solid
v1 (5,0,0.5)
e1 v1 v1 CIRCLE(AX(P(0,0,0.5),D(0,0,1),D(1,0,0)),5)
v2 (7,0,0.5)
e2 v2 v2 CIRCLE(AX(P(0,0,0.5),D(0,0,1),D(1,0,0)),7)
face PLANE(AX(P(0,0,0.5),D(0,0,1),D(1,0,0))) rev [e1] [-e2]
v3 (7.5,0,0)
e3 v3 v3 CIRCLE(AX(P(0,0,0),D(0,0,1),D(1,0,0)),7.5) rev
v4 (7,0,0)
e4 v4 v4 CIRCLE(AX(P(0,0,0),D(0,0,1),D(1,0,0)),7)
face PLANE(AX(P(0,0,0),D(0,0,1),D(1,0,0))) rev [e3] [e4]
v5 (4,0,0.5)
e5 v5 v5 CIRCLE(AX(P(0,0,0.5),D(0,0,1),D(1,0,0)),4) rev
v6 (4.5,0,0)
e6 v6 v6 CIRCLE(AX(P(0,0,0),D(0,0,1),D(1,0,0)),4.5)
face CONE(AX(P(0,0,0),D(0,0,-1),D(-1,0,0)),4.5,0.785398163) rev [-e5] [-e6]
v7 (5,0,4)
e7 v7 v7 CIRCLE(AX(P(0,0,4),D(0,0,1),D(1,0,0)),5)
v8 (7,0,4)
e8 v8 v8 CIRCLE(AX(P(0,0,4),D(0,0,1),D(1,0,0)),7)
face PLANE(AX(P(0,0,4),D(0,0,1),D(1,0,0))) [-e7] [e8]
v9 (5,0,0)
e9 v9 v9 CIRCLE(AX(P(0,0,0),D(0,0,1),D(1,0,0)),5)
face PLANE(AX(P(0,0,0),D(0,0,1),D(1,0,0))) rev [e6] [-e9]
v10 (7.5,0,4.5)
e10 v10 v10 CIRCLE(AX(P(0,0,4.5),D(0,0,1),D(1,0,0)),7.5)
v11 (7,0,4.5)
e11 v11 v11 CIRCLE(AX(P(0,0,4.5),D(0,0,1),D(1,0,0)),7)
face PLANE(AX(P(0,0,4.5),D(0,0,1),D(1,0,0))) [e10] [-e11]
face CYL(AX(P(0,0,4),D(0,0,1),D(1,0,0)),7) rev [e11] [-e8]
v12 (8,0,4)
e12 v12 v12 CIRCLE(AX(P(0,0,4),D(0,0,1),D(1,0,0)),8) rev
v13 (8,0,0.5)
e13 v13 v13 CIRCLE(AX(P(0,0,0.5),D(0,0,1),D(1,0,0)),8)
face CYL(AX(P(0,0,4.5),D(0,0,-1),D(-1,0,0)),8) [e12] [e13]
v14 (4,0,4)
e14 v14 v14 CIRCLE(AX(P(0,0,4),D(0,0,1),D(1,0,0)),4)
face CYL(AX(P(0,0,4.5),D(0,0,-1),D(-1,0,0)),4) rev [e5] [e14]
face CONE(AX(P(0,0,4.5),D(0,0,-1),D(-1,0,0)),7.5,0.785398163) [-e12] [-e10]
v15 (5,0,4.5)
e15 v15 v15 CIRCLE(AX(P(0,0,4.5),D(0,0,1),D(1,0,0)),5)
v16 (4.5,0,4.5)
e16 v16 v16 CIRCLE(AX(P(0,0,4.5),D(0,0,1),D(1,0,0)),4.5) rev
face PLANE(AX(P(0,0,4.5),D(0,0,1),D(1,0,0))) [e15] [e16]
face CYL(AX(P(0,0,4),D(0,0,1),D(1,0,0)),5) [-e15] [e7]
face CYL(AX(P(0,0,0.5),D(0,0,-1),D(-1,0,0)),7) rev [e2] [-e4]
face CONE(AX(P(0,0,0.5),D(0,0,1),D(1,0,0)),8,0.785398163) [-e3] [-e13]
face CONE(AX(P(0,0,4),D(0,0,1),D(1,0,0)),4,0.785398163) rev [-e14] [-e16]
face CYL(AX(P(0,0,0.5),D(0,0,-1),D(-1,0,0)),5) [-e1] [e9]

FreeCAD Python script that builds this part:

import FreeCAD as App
import Part
import Sketcher

V = App.Vector
Q = App.Units.Quantity


def edges_at(feature, points):
    """Names of the edges that pass closest to the given points."""
    edges = feature.Shape.Edges
    near = lambda p: min(range(len(edges)), key=lambda i: edges[i].distToShape(Part.Vertex(*p))[0])
    return sorted({f"Edge{near(p) + 1}" for p in points})

doc = App.newDocument("Part")
body = doc.addObject("PartDesign::Body", "Body")

sketch1 = body.newObject("Sketcher::SketchObject", "Sketch")
sketch1.AttachmentSupport = (doc.getObject("XY_Plane"), [""])
sketch1.MapMode = "FlatFace"
sketch1.addGeometry(Part.Circle(V(0, 0, 0), V(0, 0, 1), 8), False)
sketch1.addGeometry(Part.Circle(V(0, 0, 0), V(0, 0, 1), 4), False)
sketch1.addConstraint(Sketcher.Constraint("Coincident", 0, 3, -1, 1))
sketch1.addConstraint(Sketcher.Constraint("Coincident", 1, 3, -1, 1))
sketch1.addConstraint(Sketcher.Constraint("Diameter", 0, Q("16 mm")))
sketch1.addConstraint(Sketcher.Constraint("Diameter", 1, Q("8 mm")))
pad1 = body.newObject("PartDesign::Pad", "Pad")
pad1.Profile = sketch1
pad1.Length = 4.5
doc.recompute()

chamfer = body.newObject("PartDesign::Chamfer", "Chamfer")
chamfer.Base = (pad1, edges_at(pad1, [
    (-8, 0, 0),
    (-8, 0, 4.5),
    (-4, 0, 0),
    (-4, 0, 4.5),
]))
chamfer.Size = 0.5

sketch2 = body.newObject("Sketcher::SketchObject", "Sketch001")
sketch2.AttachmentSupport = (doc.getObject("XY_Plane"), [""])
sketch2.MapMode = "FlatFace"
sketch2.addGeometry(Part.Circle(V(0, 0, 0), V(0, 0, 1), 7), False)
sketch2.addGeometry(Part.Circle(V(0, 0, 0), V(0, 0, 1), 5), False)
sketch2.addConstraint(Sketcher.Constraint("Coincident", 0, 3, -1, 1))
sketch2.addConstraint(Sketcher.Constraint("Coincident", 1, 3, -1, 1))
sketch2.addConstraint(Sketcher.Constraint("Diameter", 0, Q("14 mm")))
sketch2.addConstraint(Sketcher.Constraint("Diameter", 1, Q("10 mm")))
pocket1 = body.newObject("PartDesign::Pocket", "Pocket")
pocket1.Profile = sketch2
pocket1.Length = 0.5
pocket1.Reversed = True

sketch3 = body.newObject("Sketcher::SketchObject", "Sketch002")
sketch3.AttachmentSupport = (doc.getObject("XY_Plane"), [""])
sketch3.MapMode = "FlatFace"
sketch3.AttachmentOffset = App.Placement(V(0, 0, 4.5), App.Rotation())
sketch3.addGeometry(Part.Circle(V(0, 0, 0), V(0, 0, 1), 7), False)
sketch3.addGeometry(Part.Circle(V(0, 0, 0), V(0, 0, 1), 5), False)
sketch3.addConstraint(Sketcher.Constraint("Coincident", 0, 3, -1, 1))
sketch3.addConstraint(Sketcher.Constraint("Coincident", 1, 3, -1, 1))
sketch3.addConstraint(Sketcher.Constraint("Diameter", 0, Q("14 mm")))
sketch3.addConstraint(Sketcher.Constraint("Diameter", 1, Q("10 mm")))
pocket2 = body.newObject("PartDesign::Pocket", "Pocket001")
pocket2.Profile = sketch3
pocket2.Length = 0.5

doc.recompute()
